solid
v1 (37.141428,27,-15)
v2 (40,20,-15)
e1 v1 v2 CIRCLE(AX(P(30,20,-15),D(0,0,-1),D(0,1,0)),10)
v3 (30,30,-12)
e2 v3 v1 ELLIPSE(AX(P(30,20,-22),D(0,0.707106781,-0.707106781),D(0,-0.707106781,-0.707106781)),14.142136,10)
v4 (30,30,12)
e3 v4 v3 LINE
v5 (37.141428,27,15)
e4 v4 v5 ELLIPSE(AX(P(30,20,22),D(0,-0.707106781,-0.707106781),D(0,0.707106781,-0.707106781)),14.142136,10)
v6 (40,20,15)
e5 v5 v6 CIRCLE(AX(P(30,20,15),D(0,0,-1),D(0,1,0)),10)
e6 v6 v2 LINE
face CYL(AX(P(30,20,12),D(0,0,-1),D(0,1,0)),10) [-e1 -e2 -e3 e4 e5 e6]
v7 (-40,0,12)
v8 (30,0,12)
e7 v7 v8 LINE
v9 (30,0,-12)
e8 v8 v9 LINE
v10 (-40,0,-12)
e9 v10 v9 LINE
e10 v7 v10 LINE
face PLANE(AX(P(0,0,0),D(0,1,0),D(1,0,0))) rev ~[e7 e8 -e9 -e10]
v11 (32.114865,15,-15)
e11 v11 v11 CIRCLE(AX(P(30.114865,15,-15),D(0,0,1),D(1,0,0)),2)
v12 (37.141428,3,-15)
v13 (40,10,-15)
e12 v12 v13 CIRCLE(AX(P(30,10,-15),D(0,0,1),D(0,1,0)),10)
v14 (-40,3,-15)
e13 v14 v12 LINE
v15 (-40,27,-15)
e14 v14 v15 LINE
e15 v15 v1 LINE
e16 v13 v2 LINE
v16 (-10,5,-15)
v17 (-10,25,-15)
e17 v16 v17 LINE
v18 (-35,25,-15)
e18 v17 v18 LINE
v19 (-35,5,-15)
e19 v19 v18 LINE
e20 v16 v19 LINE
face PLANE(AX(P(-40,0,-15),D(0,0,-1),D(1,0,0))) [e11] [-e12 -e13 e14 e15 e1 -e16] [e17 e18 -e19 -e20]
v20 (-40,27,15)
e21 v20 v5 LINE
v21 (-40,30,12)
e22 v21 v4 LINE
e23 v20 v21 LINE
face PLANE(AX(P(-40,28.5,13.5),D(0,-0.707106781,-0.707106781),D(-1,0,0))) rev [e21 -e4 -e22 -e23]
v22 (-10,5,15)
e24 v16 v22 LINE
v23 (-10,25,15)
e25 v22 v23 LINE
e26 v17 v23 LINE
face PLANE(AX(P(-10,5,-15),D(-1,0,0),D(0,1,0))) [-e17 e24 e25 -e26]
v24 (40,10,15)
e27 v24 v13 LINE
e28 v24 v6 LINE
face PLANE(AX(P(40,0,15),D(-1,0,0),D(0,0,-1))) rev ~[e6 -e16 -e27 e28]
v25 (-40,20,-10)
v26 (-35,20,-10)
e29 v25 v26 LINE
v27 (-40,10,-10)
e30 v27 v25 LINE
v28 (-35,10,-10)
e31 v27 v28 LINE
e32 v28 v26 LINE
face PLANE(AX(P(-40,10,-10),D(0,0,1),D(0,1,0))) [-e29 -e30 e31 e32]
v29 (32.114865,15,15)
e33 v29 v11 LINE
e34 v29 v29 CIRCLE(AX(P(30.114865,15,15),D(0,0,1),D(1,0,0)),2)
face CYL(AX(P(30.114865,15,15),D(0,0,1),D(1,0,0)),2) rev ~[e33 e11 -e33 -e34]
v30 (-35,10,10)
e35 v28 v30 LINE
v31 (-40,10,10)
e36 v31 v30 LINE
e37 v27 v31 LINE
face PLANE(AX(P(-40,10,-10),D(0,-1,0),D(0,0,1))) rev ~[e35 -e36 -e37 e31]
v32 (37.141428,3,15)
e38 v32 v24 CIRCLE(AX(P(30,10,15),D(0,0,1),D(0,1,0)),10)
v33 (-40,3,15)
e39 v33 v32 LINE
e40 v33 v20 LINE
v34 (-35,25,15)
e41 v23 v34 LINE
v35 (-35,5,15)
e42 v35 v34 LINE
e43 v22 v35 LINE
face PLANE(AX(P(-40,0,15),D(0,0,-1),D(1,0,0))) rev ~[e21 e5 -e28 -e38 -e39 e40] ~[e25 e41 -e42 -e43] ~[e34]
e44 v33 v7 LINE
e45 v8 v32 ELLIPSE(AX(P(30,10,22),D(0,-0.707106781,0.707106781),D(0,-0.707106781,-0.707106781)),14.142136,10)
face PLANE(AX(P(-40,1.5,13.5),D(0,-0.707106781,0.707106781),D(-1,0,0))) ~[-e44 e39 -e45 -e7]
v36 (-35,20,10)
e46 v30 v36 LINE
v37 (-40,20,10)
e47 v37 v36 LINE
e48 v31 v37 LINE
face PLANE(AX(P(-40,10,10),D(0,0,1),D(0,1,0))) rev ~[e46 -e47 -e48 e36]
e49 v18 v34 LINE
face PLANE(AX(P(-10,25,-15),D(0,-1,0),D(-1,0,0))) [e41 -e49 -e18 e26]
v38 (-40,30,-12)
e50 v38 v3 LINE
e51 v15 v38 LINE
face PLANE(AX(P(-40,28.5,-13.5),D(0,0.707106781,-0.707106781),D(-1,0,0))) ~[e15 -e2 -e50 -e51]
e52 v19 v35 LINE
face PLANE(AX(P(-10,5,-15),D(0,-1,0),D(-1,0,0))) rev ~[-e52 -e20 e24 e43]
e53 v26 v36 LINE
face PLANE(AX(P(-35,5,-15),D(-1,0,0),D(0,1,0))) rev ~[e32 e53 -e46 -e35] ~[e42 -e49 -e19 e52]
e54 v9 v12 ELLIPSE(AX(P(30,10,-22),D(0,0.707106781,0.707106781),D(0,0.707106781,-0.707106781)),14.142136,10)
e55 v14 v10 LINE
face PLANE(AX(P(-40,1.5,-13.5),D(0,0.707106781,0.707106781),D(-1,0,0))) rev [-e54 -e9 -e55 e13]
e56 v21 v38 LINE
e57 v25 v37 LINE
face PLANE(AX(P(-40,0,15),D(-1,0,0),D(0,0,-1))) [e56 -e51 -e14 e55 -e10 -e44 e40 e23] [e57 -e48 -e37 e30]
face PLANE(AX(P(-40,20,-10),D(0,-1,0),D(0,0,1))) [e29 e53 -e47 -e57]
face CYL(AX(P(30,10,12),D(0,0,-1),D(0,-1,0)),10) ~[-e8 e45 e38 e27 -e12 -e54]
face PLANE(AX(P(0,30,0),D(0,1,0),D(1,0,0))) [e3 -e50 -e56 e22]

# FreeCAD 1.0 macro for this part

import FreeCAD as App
import Part
import Sketcher

V = App.Vector


def edges_at(feature, points):
    """Names of the edges that pass closest to the given points."""
    edges = feature.Shape.Edges
    near = lambda p: min(range(len(edges)), key=lambda i: edges[i].distToShape(Part.Vertex(*p))[0])
    return sorted({f"Edge{near(p) + 1}" for p in points})


def add_polygon(sketch, points):
    """Adds a closed chain of lines whose ends are joined by coincident constraints."""
    first, n = sketch.GeometryCount, len(points)
    for a, b in zip(points, points[1:] + points[:1]):
        sketch.addGeometry(Part.LineSegment(App.Vector(*a, 0), App.Vector(*b, 0)), False)
    for i in range(n):
        sketch.addConstraint(Sketcher.Constraint("Coincident", first + i, 2, first + (i + 1) % n, 1))

doc = App.newDocument("Part")
body = doc.addObject("PartDesign::Body", "Body")

sketch1 = body.newObject("Sketcher::SketchObject", "Sketch")
sketch1.AttachmentSupport = (doc.getObject("XZ_Plane"), [""])
sketch1.MapMode = "FlatFace"
add_polygon(sketch1, [(-40, -15), (-40, 15), (40, 15), (40, -15)])
sketch1.addConstraint([
    Sketcher.Constraint("Vertical", 0),
    Sketcher.Constraint("Horizontal", 1),
    Sketcher.Constraint("Vertical", 2),
    Sketcher.Constraint("Horizontal", 3),
    Sketcher.Constraint("Symmetric", 0, 2, 2, 2, -1, 1),
    Sketcher.Constraint("DistanceX", 1, 1, 1, 2, 80.0),
    Sketcher.Constraint("DistanceY", 0, 1, 0, 2, 30.0),
])
pad1 = body.newObject("PartDesign::Pad", "Pad")
pad1.Profile = sketch1
pad1.Length = 30
pad1.Reversed = True

sketch2 = body.newObject("Sketcher::SketchObject", "Sketch001")
sketch2.AttachmentSupport = (doc.getObject("XY_Plane"), [""])
sketch2.MapMode = "FlatFace"
sketch2.AttachmentOffset = App.Placement(V(0, 0, 15), App.Rotation())
sketch2.addGeometry(Part.Circle(V(30.1, 15, 0), V(0, 0, 1), 2), False)
sketch2.addConstraint([
    Sketcher.Constraint("Diameter", 0, 4.0),
    Sketcher.Constraint("DistanceY", -1, 1, 0, 3, 15.0),
    Sketcher.Constraint("DistanceX", -1, 1, 0, 3, 30.114865),
])
pocket1 = body.newObject("PartDesign::Pocket", "Pocket")
pocket1.Profile = sketch2
pocket1.Length = 30
doc.recompute()

chamfer = body.newObject("PartDesign::Chamfer", "Chamfer")
chamfer.Base = (pocket1, edges_at(pocket1, [
    (0, 30, 15),
    (0, 0, 15),
    (0, 0, -15),
    (0, 30, -15),
]))
chamfer.Size = 3

sketch3 = body.newObject("Sketcher::SketchObject", "Sketch002")
sketch3.AttachmentSupport = (doc.getObject("XY_Plane"), [""])
sketch3.MapMode = "FlatFace"
sketch3.AttachmentOffset = App.Placement(V(0, 0, -15), App.Rotation())
add_polygon(sketch3, [(-10, 25), (-10, 5), (-35, 5), (-35, 25)])
sketch3.addConstraint([
    Sketcher.Constraint("Vertical", 0),
    Sketcher.Constraint("Horizontal", 1),
    Sketcher.Constraint("Vertical", 2),
    Sketcher.Constraint("Horizontal", 3),
    Sketcher.Constraint("DistanceX", 1, 2, 1, 1, 25.0),
    Sketcher.Constraint("DistanceY", 0, 2, 0, 1, 20.0),
    Sketcher.Constraint("DistanceX", 0, 2, -1, 1, 10.0),
    Sketcher.Constraint("DistanceY", -1, 1, 0, 2, 5.0),
])
pocket2 = body.newObject("PartDesign::Pocket", "Pocket001")
pocket2.Profile = sketch3
pocket2.Length = 30
pocket2.Reversed = True

sketch4 = body.newObject("Sketcher::SketchObject", "Sketch003")
sketch4.AttachmentSupport = (doc.getObject("YZ_Plane"), [""])
sketch4.MapMode = "FlatFace"
sketch4.AttachmentOffset = App.Placement(V(0, 0, -40), App.Rotation())
add_polygon(sketch4, [(20, -10), (10, -10), (10, 10), (20, 10)])
sketch4.addConstraint([
    Sketcher.Constraint("Horizontal", 0),
    Sketcher.Constraint("Vertical", 1),
    Sketcher.Constraint("Horizontal", 2),
    Sketcher.Constraint("Vertical", 3),
    Sketcher.Constraint("DistanceX", 0, 2, 0, 1, 10.0),
    Sketcher.Constraint("DistanceY", 1, 1, 1, 2, 20.0),
    Sketcher.Constraint("DistanceX", -1, 1, 0, 2, 10.0),
    Sketcher.Constraint("DistanceY", 0, 2, -1, 1, 10.0),
])
pocket3 = body.newObject("PartDesign::Pocket", "Pocket002")
pocket3.Profile = sketch4
pocket3.Length = 20
pocket3.Reversed = True
doc.recompute()

fillet = body.newObject("PartDesign::Fillet", "Fillet")
fillet.Base = (pocket3, edges_at(pocket3, [(40, 0, 0), (40, 30, 0)]))
fillet.Radius = 10

doc.recompute()
